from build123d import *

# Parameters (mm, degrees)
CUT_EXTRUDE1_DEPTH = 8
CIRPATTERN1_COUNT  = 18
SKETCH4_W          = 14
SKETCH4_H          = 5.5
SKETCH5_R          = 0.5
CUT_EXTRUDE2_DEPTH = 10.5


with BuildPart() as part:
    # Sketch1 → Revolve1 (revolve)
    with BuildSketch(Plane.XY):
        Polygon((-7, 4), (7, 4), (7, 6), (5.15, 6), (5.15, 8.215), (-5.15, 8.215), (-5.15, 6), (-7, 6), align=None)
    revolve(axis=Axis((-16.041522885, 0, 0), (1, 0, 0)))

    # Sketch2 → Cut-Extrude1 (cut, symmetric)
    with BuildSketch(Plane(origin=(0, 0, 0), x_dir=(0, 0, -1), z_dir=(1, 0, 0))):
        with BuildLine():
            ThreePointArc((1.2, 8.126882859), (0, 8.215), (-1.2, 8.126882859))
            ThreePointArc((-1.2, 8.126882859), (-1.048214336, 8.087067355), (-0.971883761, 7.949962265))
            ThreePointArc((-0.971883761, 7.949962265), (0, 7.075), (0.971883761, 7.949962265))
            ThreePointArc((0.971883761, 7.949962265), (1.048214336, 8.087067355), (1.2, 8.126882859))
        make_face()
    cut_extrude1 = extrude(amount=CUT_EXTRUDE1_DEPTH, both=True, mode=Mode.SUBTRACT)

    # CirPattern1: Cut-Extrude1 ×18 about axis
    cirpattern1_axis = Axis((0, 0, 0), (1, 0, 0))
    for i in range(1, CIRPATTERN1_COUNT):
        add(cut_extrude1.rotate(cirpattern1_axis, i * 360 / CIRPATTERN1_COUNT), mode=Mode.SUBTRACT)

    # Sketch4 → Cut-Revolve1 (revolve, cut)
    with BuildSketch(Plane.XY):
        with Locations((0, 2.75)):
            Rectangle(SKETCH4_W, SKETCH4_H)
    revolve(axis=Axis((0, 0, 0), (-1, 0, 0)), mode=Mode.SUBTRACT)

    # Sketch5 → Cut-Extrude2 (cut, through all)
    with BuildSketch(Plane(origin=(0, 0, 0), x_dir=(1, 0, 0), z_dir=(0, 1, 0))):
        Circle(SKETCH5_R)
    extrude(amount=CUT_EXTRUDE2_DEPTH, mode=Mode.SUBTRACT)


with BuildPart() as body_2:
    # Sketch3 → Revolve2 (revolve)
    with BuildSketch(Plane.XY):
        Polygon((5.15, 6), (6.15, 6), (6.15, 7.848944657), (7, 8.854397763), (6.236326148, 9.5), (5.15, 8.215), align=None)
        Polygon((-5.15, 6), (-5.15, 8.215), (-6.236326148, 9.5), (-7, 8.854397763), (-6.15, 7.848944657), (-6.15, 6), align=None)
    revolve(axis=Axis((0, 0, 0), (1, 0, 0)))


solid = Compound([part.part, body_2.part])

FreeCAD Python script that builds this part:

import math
import FreeCAD as App
import Part
import Sketcher
from FreeCAD import Vector

doc = App.newDocument("Part")
body = doc.addObject("PartDesign::Body", "Body")

sketch1 = body.newObject("Sketcher::SketchObject", "Sketch")
sketch1.AttachmentSupport = (doc.getObject("XY_Plane"), [""])
sketch1.MapMode = "FlatFace"
sketch1.addGeometry([
    Part.LineSegment(Vector(-7, 4, 0), Vector(7, 4, 0)),
    Part.LineSegment(Vector(7, 4, 0), Vector(7, 6, 0)),
    Part.LineSegment(Vector(7, 6, 0), Vector(5.15, 6, 0)),
    Part.LineSegment(Vector(5.15, 6, 0), Vector(5.15, 8.215, 0)),
    Part.LineSegment(Vector(5.15, 8.215, 0), Vector(-5.15, 8.215, 0)),
    Part.LineSegment(Vector(-5.15, 8.215, 0), Vector(-5.15, 6, 0)),
    Part.LineSegment(Vector(-5.15, 6, 0), Vector(-7, 6, 0)),
    Part.LineSegment(Vector(-7, 6, 0), Vector(-7, 4, 0)),
], False)
sketch1.addConstraint([
    Sketcher.Constraint("Coincident", 0, 2, 1, 1),
    Sketcher.Constraint("Coincident", 1, 2, 2, 1),
    Sketcher.Constraint("Coincident", 2, 2, 3, 1),
    Sketcher.Constraint("Coincident", 3, 2, 4, 1),
    Sketcher.Constraint("Coincident", 4, 2, 5, 1),
    Sketcher.Constraint("Coincident", 5, 2, 6, 1),
    Sketcher.Constraint("Coincident", 6, 2, 7, 1),
    Sketcher.Constraint("Coincident", 7, 2, 0, 1),
    Sketcher.Constraint("Horizontal", 0),
    Sketcher.Constraint("Vertical", 1),
    Sketcher.Constraint("Horizontal", 2),
    Sketcher.Constraint("Vertical", 3),
    Sketcher.Constraint("Horizontal", 4),
    Sketcher.Constraint("Vertical", 5),
    Sketcher.Constraint("Horizontal", 6),
    Sketcher.Constraint("Vertical", 7),
    Sketcher.Constraint("Symmetric", 2, 2, 5, 2, -2),
    Sketcher.Constraint("Equal", 2, 6),
    Sketcher.Constraint("DistanceX", 0, 1, 0, 2, 14.0),
    Sketcher.Constraint("DistanceY", 1, 1, 1, 2, 2.0),
    Sketcher.Constraint("DistanceX", 4, 2, 4, 1, 10.3),
    Sketcher.Constraint("DistanceY", -1, 1, 0, 2, 4.0),
    Sketcher.Constraint("DistanceY", 3, 1, 3, 2, 2.215),
])
revolution = body.newObject("PartDesign::Revolution", "Revolution")
revolution.Profile = sketch1
revolution.ReferenceAxis = (sketch1, ["H_Axis"])
revolution.Angle = 360

sketch2 = body.newObject("Sketcher::SketchObject", "Sketch001")
sketch2.AttachmentSupport = (doc.getObject("YZ_Plane"), [""])
sketch2.MapMode = "FlatFace"
sketch2.addGeometry([
    Part.ArcOfCircle(Part.Circle(Vector(0, 0, 0), Vector(0, 0, 1), 8.215), math.radians(-8.399492), math.radians(8.399492)),
    Part.ArcOfCircle(Part.Circle(Vector(7.929028, 1.170785, 0), Vector(0, 0, 1), 0.2), math.radians(-83.991808), math.radians(8.399492)),
    Part.ArcOfCircle(Part.Circle(Vector(8.052252, 0, 0), Vector(0, 0, 1), 0.977252), math.radians(96.008192), math.radians(263.991808)),
    Part.ArcOfCircle(Part.Circle(Vector(7.929028, -1.170785, 0), Vector(0, 0, 1), 0.2), math.radians(-8.399492), math.radians(83.991808)),
], False)
sketch2.addConstraint([
    Sketcher.Constraint("Tangent", 0, 2, 1, 2),
    Sketcher.Constraint("Tangent", 1, 1, 2, 1),
    Sketcher.Constraint("Tangent", 2, 2, 3, 2),
    Sketcher.Constraint("Tangent", 3, 1, 0, 1),
    Sketcher.Constraint("Coincident", 0, 3, -1, 1),
    Sketcher.Constraint("Equal", 1, 3),
    Sketcher.Constraint("PointOnObject", 2, 3, -1),
    Sketcher.Constraint("Radius", 1, 0.2),
    Sketcher.Constraint("Radius", 0, 8.215),
    Sketcher.Constraint("DistanceY", -1, 1, 0, 2, 1.2),
    Sketcher.Constraint("Radius", 2, 0.977252),
])
pocket1 = body.newObject("PartDesign::Pocket", "Pocket")
pocket1.Profile = sketch2
pocket1.Length = 16
pocket1.Midplane = True
doc.recompute()

polarpattern = body.newObject("PartDesign::PolarPattern", "PolarPattern")
polarpattern.Originals = [pocket1]
polarpattern.Axis = (doc.getObject("X_Axis"), [""])
polarpattern.Angle = 360
polarpattern.Occurrences = 18
body.Tip = polarpattern

sketch3 = body.newObject("Sketcher::SketchObject", "Sketch002")
sketch3.AttachmentSupport = (doc.getObject("XY_Plane"), [""])
sketch3.MapMode = "FlatFace"
sketch3.addGeometry([
    Part.LineSegment(Vector(-7, 5.5, 0), Vector(-7, 0, 0)),
    Part.LineSegment(Vector(-7, 0, 0), Vector(7, 0, 0)),
    Part.LineSegment(Vector(7, 0, 0), Vector(7, 5.5, 0)),
    Part.LineSegment(Vector(7, 5.5, 0), Vector(-7, 5.5, 0)),
], False)
sketch3.addConstraint([
    Sketcher.Constraint("Coincident", 0, 2, 1, 1),
    Sketcher.Constraint("Coincident", 1, 2, 2, 1),
    Sketcher.Constraint("Coincident", 2, 2, 3, 1),
    Sketcher.Constraint("Coincident", 3, 2, 0, 1),
    Sketcher.Constraint("Vertical", 0),
    Sketcher.Constraint("Horizontal", 1),
    Sketcher.Constraint("Vertical", 2),
    Sketcher.Constraint("Horizontal", 3),
    Sketcher.Constraint("Symmetric", 0, 2, 1, 2, -1, 1),
    Sketcher.Constraint("DistanceX", 1, 1, 1, 2, 14.0),
    Sketcher.Constraint("DistanceY", 0, 2, 0, 1, 5.5),
])
groove = body.newObject("PartDesign::Groove", "Groove")
groove.Profile = sketch3
groove.ReferenceAxis = (sketch3, ["H_Axis"])
groove.Angle = 360

sketch4 = body.newObject("Sketcher::SketchObject", "Sketch003")
sketch4.AttachmentSupport = (doc.getObject("XZ_Plane"), [""])
sketch4.MapMode = "FlatFace"
sketch4.addGeometry(Part.Circle(Vector(0, 0, 0), Vector(0, 0, 1), 0.5), False)
sketch4.addConstraint([
    Sketcher.Constraint("Coincident", 0, 3, -1, 1),
    Sketcher.Constraint("Diameter", 0, 1.0),
])
pocket2 = body.newObject("PartDesign::Pocket", "Pocket001")
pocket2.Profile = sketch4
pocket2.Type = "ThroughAll"
body2 = doc.addObject("PartDesign::Body", "Body001")
body2.AllowCompound = True

sketch5 = body2.newObject("Sketcher::SketchObject", "Sketch004")
sketch5.AttachmentSupport = (doc.getObject("XY_Plane001"), [""])
sketch5.MapMode = "FlatFace"
sketch5.addGeometry([
    Part.LineSegment(Vector(5.15, 6, 0), Vector(6.15, 6, 0)),
    Part.LineSegment(Vector(6.15, 6, 0), Vector(6.15, 7.848945, 0)),
    Part.LineSegment(Vector(6.15, 7.848945, 0), Vector(7, 8.854398, 0)),
    Part.LineSegment(Vector(7, 8.854398, 0), Vector(6.236326, 9.5, 0)),
    Part.LineSegment(Vector(6.236326, 9.5, 0), Vector(5.15, 8.215, 0)),
    Part.LineSegment(Vector(5.15, 8.215, 0), Vector(5.15, 6, 0)),
    Part.LineSegment(Vector(-5.15, 6, 0), Vector(-5.15, 8.215, 0)),
    Part.LineSegment(Vector(-5.15, 8.215, 0), Vector(-6.236326, 9.5, 0)),
    Part.LineSegment(Vector(-6.236326, 9.5, 0), Vector(-7, 8.854398, 0)),
    Part.LineSegment(Vector(-7, 8.854398, 0), Vector(-6.15, 7.848945, 0)),
    Part.LineSegment(Vector(-6.15, 7.848945, 0), Vector(-6.15, 6, 0)),
    Part.LineSegment(Vector(-6.15, 6, 0), Vector(-5.15, 6, 0)),
], False)
sketch5.addConstraint([
    Sketcher.Constraint("Coincident", 0, 2, 1, 1),
    Sketcher.Constraint("Coincident", 1, 2, 2, 1),
    Sketcher.Constraint("Coincident", 2, 2, 3, 1),
    Sketcher.Constraint("Coincident", 3, 2, 4, 1),
    Sketcher.Constraint("Coincident", 4, 2, 5, 1),
    Sketcher.Constraint("Coincident", 5, 2, 0, 1),
    Sketcher.Constraint("Coincident", 6, 2, 7, 1),
    Sketcher.Constraint("Coincident", 7, 2, 8, 1),
    Sketcher.Constraint("Coincident", 8, 2, 9, 1),
    Sketcher.Constraint("Coincident", 9, 2, 10, 1),
    Sketcher.Constraint("Coincident", 10, 2, 11, 1),
    Sketcher.Constraint("Coincident", 11, 2, 6, 1),
    Sketcher.Constraint("Horizontal", 0),
    Sketcher.Constraint("Vertical", 1),
    Sketcher.Constraint("Vertical", 5),
    Sketcher.Constraint("Vertical", 6),
    Sketcher.Constraint("Vertical", 10),
    Sketcher.Constraint("Horizontal", 11),
    Sketcher.Constraint("Symmetric", 4, 2, 6, 2, -2),
    Sketcher.Constraint("Symmetric", 3, 2, 7, 2, -2),
    Sketcher.Constraint("Symmetric", 2, 2, 8, 2, -2),
    Sketcher.Constraint("Symmetric", 1, 2, 9, 2, -2),
    Sketcher.Constraint("Perpendicular", 2, 3),
    Sketcher.Constraint("Perpendicular", 3, 4),
    Sketcher.Constraint("Horizontal", 5, 2, 10, 2),
    Sketcher.Constraint("DistanceX", 0, 1, 0, 2, 1.0),
    Sketcher.Constraint("Distance", 3, 1.0),
    Sketcher.Constraint("DistanceY", -1, 1, 0, 2, 6.0),
    Sketcher.Constraint("DistanceX", -1, 1, 2, 2, 7.0),
    Sketcher.Constraint("DistanceY", -1, 1, 3, 2, 9.5),
    Sketcher.Constraint("DistanceX", 6, 2, 4, 2, 10.3),
    Sketcher.Constraint("DistanceY", 5, 2, 5, 1, 2.215),
])
revolution2 = body2.newObject("PartDesign::Revolution", "Revolution001")
revolution2.Profile = sketch5
revolution2.ReferenceAxis = (sketch5, ["H_Axis"])
revolution2.Angle = 360

doc.recompute()
